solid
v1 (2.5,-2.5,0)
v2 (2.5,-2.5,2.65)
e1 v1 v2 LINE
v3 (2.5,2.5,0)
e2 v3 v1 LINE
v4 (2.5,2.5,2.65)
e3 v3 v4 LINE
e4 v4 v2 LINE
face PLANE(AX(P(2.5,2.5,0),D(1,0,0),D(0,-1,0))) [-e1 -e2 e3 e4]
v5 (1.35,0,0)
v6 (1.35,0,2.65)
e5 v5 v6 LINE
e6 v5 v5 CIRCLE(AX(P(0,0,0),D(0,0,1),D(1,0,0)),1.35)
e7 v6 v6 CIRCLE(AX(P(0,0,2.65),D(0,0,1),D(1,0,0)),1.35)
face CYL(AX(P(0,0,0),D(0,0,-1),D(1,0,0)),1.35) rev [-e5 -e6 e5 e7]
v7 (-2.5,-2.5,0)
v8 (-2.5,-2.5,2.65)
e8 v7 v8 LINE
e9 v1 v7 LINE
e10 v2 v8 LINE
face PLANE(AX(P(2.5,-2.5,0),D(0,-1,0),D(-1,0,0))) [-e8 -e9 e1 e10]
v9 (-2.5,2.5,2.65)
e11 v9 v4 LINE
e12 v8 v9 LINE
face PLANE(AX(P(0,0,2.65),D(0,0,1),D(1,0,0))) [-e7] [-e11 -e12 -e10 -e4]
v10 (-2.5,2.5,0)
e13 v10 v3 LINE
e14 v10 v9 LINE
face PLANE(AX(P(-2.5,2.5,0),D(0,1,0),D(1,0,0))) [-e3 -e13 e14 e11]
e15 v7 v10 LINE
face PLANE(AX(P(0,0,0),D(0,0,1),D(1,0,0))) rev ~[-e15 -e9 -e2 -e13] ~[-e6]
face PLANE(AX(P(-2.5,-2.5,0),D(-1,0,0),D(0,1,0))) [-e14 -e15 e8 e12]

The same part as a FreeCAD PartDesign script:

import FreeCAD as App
import Part
import Sketcher


def add_polygon(sketch, points):
    """Adds a closed chain of lines whose ends are joined by coincident constraints."""
    first, n = sketch.GeometryCount, len(points)
    for a, b in zip(points, points[1:] + points[:1]):
        sketch.addGeometry(Part.LineSegment(App.Vector(*a, 0), App.Vector(*b, 0)), False)
    for i in range(n):
        sketch.addConstraint(Sketcher.Constraint("Coincident", first + i, 2, first + (i + 1) % n, 1))

doc = App.newDocument("Part")
body = doc.addObject("PartDesign::Body", "Body")

# Sketch on XY plane
sketch1 = body.newObject("Sketcher::SketchObject", "Sketch")
sketch1.AttachmentSupport = (doc.getObject("XY_Plane"), [""])
sketch1.MapMode = "FlatFace"
add_polygon(sketch1, [(2.5, 2.5), (-2.5, 2.5), (-2.5, -2.5), (2.5, -2.5)])  # lines 0-3
sketch1.addGeometry(Part.Circle(App.Vector(0, 0, 0), App.Vector(0, 0, 1), 1.4), False)  # 4
sketch1.addConstraint([
    Sketcher.Constraint("Horizontal", 0),
    Sketcher.Constraint("Vertical", 1),
    Sketcher.Constraint("Horizontal", 2),
    Sketcher.Constraint("Vertical", 3),
    Sketcher.Constraint("Coincident", 4, 3, -1, 1),
    Sketcher.Constraint("Symmetric", 0, 2, 2, 2, -1, 1),
    Sketcher.Constraint("Equal", 2, 1),
    Sketcher.Constraint("Diameter", 4, 2.7),
    Sketcher.Constraint("DistanceX", 0, 2, 0, 1, 5.0),
])
pad1 = body.newObject("PartDesign::Pad", "Pad")
pad1.Profile = sketch1
pad1.Length = 2.65

doc.recompute()
